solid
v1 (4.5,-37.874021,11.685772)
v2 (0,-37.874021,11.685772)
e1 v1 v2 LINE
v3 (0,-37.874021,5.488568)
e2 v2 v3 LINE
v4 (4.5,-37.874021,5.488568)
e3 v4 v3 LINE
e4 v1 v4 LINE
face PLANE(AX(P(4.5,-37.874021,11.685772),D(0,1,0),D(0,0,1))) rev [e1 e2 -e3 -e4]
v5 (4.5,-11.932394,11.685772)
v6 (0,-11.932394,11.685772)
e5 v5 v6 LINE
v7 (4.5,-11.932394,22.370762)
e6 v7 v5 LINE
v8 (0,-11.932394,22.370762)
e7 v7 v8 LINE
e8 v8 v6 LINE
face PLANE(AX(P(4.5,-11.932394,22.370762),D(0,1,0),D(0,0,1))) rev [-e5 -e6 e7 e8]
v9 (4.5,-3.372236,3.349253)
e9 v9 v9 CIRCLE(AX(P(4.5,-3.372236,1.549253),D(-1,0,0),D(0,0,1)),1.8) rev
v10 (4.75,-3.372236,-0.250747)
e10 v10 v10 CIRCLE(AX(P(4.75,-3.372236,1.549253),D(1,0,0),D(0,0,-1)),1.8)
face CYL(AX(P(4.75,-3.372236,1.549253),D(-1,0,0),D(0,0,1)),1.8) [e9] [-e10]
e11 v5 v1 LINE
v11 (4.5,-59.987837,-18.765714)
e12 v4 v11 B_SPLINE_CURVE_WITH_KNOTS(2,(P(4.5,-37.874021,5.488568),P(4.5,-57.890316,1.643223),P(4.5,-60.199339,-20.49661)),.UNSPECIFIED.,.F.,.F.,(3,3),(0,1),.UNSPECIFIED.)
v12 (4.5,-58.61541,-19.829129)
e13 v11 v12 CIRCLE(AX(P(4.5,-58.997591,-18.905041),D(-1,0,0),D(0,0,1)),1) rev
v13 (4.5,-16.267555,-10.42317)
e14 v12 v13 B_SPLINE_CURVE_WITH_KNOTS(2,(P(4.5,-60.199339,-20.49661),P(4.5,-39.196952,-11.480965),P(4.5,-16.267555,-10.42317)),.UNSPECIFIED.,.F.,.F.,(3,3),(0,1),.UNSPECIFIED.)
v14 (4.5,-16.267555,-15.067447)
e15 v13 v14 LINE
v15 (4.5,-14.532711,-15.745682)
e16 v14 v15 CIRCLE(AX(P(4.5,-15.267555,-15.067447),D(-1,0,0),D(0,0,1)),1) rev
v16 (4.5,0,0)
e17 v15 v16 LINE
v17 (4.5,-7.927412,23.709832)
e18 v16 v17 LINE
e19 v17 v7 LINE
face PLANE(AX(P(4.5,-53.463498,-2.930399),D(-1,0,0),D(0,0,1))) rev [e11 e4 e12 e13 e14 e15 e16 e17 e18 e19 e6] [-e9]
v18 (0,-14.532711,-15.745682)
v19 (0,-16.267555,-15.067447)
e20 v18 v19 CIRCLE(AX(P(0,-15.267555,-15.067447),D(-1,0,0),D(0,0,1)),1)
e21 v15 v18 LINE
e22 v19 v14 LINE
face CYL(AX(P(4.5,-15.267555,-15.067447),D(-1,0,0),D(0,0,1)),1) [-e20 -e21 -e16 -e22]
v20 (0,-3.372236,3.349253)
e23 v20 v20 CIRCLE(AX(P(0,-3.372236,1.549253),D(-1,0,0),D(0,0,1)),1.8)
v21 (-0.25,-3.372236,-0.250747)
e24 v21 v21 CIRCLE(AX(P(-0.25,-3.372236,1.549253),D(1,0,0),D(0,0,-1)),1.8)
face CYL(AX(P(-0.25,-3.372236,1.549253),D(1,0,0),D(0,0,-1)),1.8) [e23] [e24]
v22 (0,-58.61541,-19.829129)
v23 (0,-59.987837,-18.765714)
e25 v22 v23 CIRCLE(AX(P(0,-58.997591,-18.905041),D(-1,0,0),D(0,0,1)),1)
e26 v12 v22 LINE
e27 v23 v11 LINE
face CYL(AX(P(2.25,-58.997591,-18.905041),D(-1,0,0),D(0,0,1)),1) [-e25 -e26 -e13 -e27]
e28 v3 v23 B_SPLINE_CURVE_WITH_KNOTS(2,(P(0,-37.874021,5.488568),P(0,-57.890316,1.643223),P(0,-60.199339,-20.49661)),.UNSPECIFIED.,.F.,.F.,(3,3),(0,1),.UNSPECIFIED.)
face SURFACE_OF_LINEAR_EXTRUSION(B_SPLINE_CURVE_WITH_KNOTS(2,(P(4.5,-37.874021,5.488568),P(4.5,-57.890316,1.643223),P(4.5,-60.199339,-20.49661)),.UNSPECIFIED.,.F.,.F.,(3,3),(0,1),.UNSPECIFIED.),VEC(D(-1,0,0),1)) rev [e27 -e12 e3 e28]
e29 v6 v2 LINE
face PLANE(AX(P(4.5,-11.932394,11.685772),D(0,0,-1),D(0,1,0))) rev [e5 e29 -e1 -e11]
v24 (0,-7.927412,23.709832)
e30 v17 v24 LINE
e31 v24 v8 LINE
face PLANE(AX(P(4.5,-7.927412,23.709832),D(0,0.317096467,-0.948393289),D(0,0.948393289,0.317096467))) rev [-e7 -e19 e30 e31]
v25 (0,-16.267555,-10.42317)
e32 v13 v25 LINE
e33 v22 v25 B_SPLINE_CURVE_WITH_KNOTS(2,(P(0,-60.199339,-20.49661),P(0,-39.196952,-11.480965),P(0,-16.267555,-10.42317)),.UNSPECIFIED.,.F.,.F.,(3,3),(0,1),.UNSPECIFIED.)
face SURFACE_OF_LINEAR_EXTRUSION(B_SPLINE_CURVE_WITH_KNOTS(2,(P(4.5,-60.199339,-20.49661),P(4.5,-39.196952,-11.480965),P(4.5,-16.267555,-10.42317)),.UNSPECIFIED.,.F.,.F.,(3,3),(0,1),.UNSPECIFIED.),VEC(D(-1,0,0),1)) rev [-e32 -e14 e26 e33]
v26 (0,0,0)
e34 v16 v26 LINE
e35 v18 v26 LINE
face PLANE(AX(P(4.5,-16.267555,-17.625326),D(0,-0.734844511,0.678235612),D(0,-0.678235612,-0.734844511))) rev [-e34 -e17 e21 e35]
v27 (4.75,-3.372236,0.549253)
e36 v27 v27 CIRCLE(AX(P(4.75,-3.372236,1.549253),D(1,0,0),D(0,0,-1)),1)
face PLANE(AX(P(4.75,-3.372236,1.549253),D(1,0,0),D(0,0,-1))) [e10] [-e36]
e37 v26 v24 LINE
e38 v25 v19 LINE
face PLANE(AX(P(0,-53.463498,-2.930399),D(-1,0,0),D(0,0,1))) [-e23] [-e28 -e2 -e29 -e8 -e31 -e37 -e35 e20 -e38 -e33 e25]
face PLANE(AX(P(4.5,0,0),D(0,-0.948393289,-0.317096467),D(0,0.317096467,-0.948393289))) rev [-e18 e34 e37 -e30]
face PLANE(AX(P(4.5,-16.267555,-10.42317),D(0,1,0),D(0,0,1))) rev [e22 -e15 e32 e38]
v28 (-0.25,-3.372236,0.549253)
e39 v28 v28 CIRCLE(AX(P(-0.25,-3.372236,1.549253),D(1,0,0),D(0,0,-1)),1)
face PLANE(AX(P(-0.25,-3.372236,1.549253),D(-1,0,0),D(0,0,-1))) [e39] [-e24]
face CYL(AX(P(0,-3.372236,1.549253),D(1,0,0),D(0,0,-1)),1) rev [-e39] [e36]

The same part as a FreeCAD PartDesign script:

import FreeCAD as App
import Part
import Sketcher
from FreeCAD import Vector
Q = App.Units.Quantity


def edges_at(feature, points):
    """Names of the edges that pass closest to the given points."""
    edges = feature.Shape.Edges
    near = lambda p: min(range(len(edges)), key=lambda i: edges[i].distToShape(Part.Vertex(*p))[0])
    return sorted({f"Edge{near(p) + 1}" for p in points})

doc = App.newDocument("Part")
body = doc.addObject("PartDesign::Body", "Body")

# Sketch on YZ plane
sketch1 = body.newObject("Sketcher::SketchObject", "Sketch")
sketch1.AttachmentSupport = (doc.getObject("YZ_Plane"), [""])
sketch1.MapMode = "FlatFace"
sketch1.addGeometry([
    Part.LineSegment(Vector(0, 0, 0), Vector(-7.927412, 23.709832, 0)),  # 0
    Part.LineSegment(Vector(-7.927412, 23.709832, 0), Vector(-11.932394, 22.370762, 0)),  # 1
    Part.LineSegment(Vector(-11.932394, 22.370762, 0), Vector(-11.932394, 11.685772, 0)),  # 2
    Part.LineSegment(Vector(-11.932394, 11.685772, 0), Vector(-37.874021, 11.685772, 0)),  # 3
    Part.LineSegment(Vector(-37.874021, 11.685772, 0), Vector(-37.874021, 5.488568, 0)),  # 4
    Part.BSplineCurve([Vector(-37.874021, 5.488568, 0), Vector(-57.890316, 1.643223, 0), Vector(-60.199339, -20.49661, 0)], [3, 3], [0, 1], False, 2, [1, 1, 1], False),  # 5
    Part.BSplineCurve([Vector(-60.199339, -20.49661, 0), Vector(-39.196952, -11.480965, 0), Vector(-16.267555, -10.42317, 0)], [3, 3], [0, 1], False, 2, [1, 1, 1], False),  # 6
    Part.LineSegment(Vector(-16.267555, -10.42317, 0), Vector(-16.267555, -17.625326, 0)),  # 7
    Part.LineSegment(Vector(-16.267555, -17.625326, 0), Vector(0, 0, 0)),  # 8
], False)
sketch1.addConstraint([
    Sketcher.Constraint("Block", 5),
    Sketcher.Constraint("Block", 6),
    Sketcher.Constraint("Coincident", 0, 2, 1, 1),
    Sketcher.Constraint("Coincident", 1, 2, 2, 1),
    Sketcher.Constraint("Coincident", 2, 2, 3, 1),
    Sketcher.Constraint("Coincident", 3, 2, 4, 1),
    Sketcher.Constraint("Coincident", 4, 2, 5, 1),
    Sketcher.Constraint("Coincident", 6, 2, 7, 1),
    Sketcher.Constraint("Coincident", 7, 2, 8, 1),
    Sketcher.Constraint("Coincident", 8, 2, 0, 1),
    Sketcher.Constraint("Vertical", 2),
    Sketcher.Constraint("Horizontal", 3),
    Sketcher.Constraint("Vertical", 4),
    Sketcher.Constraint("Vertical", 7),
    Sketcher.Constraint("Coincident", 8, 2, -1, 1),
    Sketcher.Constraint("Distance", 0, Q("25 mm")),
    Sketcher.Constraint("DistanceY", 2, 2, 2, 1, Q("10.68499 mm")),
    Sketcher.Constraint("Distance", 8, Q("23.985109 mm")),
    Sketcher.Constraint("DistanceX", 3, 2, 3, 1, Q("25.941627 mm")),
    Sketcher.Constraint("DistanceY", 4, 2, 4, 1, Q("6.197203 mm")),
    Sketcher.Constraint("DistanceX", 0, 2, -1, 1, Q("7.927412 mm")),
])
pad1 = body.newObject("PartDesign::Pad", "Pad")
pad1.Profile = sketch1
pad1.Length = 4.5

# Sketch on YZ plane
sketch2 = body.newObject("Sketcher::SketchObject", "Sketch001")
sketch2.AttachmentSupport = (doc.getObject("YZ_Plane"), [""])
sketch2.MapMode = "FlatFace"
sketch2.AttachmentOffset = App.Placement(Vector(0, 0, 4.5), App.Rotation())
sketch2.addGeometry(Part.Circle(Vector(-3.372236, 1.549253, 0), Vector(0, 0, 1), 1), False)
sketch2.addConstraint([
    Sketcher.Constraint("Diameter", 0, Q("2 mm")),
    Sketcher.Constraint("DistanceX", 0, 3, -1, 1, Q("3.372236 mm")),
    Sketcher.Constraint("DistanceY", -1, 1, 0, 3, Q("1.549253 mm")),
])
pocket1 = body.newObject("PartDesign::Pocket", "Pocket")
pocket1.Profile = sketch2
pocket1.Type = "ThroughAll"
pocket1.Midplane = True
doc.recompute()

fillet = body.newObject("PartDesign::Fillet", "Fillet")
fillet.Base = (pocket1, edges_at(pocket1, [(2.25, -16.268, -17.625)]))
fillet.Radius = 1
doc.recompute()

fillet2 = body.newObject("PartDesign::Fillet", "Fillet001")
fillet2.Base = (fillet, edges_at(fillet, [(2.25, -60.199, -20.497)]))
fillet2.Radius = 1

# Sketch on YZ plane
sketch3 = body.newObject("Sketcher::SketchObject", "Sketch002")
sketch3.AttachmentSupport = (doc.getObject("YZ_Plane"), [""])
sketch3.MapMode = "FlatFace"
sketch3.AttachmentOffset = App.Placement(Vector(0, 0, 4.5), App.Rotation())
sketch3.addGeometry(Part.Circle(Vector(-3.372236, 1.549253, 0), Vector(0, 0, 1), 1.8), False)
sketch3.addConstraint([
    Sketcher.Constraint("Diameter", 0, Q("3.6 mm")),
    Sketcher.Constraint("DistanceX", 0, 3, -1, 1, Q("3.372236 mm")),
    Sketcher.Constraint("DistanceY", -1, 1, 0, 3, Q("1.549253 mm")),
])
pad2 = body.newObject("PartDesign::Pad", "Pad001")
pad2.Profile = sketch3
pad2.Length = 0.25

# Sketch on YZ plane
sketch4 = body.newObject("Sketcher::SketchObject", "Sketch003")
sketch4.AttachmentSupport = (doc.getObject("YZ_Plane"), [""])
sketch4.MapMode = "FlatFace"
sketch4.AttachmentOffset = App.Placement(Vector(0, 0, 4.75), App.Rotation())
sketch4.addGeometry(Part.Circle(Vector(-3.372236, 1.549253, 0), Vector(0, 0, 1), 1), False)
sketch4.addConstraint([
    Sketcher.Constraint("Diameter", 0, Q("2 mm")),
    Sketcher.Constraint("DistanceX", 0, 3, -1, 1, Q("3.372236 mm")),
    Sketcher.Constraint("DistanceY", -1, 1, 0, 3, Q("1.549253 mm")),
])
pocket2 = body.newObject("PartDesign::Pocket", "Pocket001")
pocket2.Profile = sketch4
pocket2.Type = "ThroughAll"
doc.recompute()

datumplane = body.newObject("PartDesign::Plane", "DatumPlane")
datumplane.AttachmentSupport = (doc.getObject("YZ_Plane"), [""])
datumplane.MapMode = "FlatFace"
datumplane.AttachmentOffset = App.Placement(Vector(0, 0, 2.25), App.Rotation())
mirrored = body.newObject("PartDesign::Mirrored", "Mirrored")
mirrored.Originals = [pad2, pocket2]
mirrored.MirrorPlane = (datumplane, [""])
body.Tip = mirrored

doc.recompute()
